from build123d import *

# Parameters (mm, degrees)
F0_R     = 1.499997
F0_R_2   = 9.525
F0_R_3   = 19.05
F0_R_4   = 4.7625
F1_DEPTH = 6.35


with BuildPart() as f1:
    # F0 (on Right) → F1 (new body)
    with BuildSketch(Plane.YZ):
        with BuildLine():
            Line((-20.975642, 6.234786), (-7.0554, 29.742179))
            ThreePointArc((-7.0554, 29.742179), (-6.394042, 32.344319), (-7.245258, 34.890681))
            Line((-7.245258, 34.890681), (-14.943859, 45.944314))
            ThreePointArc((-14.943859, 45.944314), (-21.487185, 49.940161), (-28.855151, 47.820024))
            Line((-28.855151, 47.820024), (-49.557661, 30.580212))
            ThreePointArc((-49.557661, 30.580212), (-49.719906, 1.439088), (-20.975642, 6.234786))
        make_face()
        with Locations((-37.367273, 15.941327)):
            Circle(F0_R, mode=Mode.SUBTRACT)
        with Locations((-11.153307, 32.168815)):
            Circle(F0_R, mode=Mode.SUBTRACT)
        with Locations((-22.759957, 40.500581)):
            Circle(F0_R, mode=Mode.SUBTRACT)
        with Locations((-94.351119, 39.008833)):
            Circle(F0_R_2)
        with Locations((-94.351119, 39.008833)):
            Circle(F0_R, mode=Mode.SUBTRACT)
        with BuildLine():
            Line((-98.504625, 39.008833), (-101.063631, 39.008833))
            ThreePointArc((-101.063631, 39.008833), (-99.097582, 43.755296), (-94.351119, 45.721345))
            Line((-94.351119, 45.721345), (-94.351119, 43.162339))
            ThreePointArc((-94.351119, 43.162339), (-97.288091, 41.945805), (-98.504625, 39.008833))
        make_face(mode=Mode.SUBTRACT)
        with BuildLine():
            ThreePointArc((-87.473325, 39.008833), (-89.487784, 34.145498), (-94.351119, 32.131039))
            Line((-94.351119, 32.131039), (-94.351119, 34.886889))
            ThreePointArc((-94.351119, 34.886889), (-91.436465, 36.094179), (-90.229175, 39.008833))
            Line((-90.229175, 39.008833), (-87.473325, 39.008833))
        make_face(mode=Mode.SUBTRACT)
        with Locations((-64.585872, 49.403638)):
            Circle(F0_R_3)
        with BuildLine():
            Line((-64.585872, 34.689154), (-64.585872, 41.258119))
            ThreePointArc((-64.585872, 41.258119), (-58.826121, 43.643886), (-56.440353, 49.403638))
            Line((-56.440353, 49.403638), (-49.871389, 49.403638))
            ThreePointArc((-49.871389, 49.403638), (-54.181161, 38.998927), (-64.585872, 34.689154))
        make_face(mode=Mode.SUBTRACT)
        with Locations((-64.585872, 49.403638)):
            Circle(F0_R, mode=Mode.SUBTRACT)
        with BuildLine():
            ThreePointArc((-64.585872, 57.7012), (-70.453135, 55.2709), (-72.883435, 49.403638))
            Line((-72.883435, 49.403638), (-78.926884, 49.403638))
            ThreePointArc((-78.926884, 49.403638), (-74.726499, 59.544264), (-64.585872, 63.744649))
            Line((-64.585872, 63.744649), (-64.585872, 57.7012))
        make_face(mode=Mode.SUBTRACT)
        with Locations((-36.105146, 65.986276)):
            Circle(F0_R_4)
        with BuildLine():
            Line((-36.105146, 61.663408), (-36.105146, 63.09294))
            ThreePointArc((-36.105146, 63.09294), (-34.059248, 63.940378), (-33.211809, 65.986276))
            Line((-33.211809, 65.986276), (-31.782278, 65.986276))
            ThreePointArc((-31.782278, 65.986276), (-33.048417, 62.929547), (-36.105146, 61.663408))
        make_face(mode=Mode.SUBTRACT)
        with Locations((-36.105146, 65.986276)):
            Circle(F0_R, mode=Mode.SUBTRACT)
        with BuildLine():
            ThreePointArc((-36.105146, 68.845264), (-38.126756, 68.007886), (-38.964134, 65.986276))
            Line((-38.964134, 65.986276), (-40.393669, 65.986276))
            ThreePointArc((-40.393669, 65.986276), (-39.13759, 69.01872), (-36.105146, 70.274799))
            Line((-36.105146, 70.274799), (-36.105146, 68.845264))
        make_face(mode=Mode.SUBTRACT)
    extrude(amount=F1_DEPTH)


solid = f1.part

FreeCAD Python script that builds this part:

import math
import FreeCAD as App
import Part
import Sketcher
Q = App.Units.Quantity

doc = App.newDocument("Part")
body = doc.addObject("PartDesign::Body", "Body")
body.AllowCompound = True

sketch1 = doc.addObject("Sketcher::SketchObject", "Sketch")
body.addObject(sketch1)
sketch1.AttachmentSupport = (doc.YZ_Plane, [""])
sketch1.MapMode = "FlatFace"
sketch1.addGeometry([
    Part.LineSegment(App.Vector(-20.975642, 6.234786, 0), App.Vector(-7.0554, 29.742179, 0)),
    Part.ArcOfCircle(Part.Circle(App.Vector(-11.153306, 32.168815, 0), App.Vector(0, 0, 1), 4.762498), math.radians(-30.632528), math.radians(34.856334)),
    Part.LineSegment(App.Vector(-7.245258, 34.890681, 0), App.Vector(-14.943859, 45.944314, 0)),
    Part.ArcOfCircle(Part.Circle(App.Vector(-22.759958, 40.50058, 0), App.Vector(0, 0, 1), 9.525001), math.radians(34.856329), math.radians(129.785499)),
    Part.LineSegment(App.Vector(-28.855151, 47.820024, 0), App.Vector(-49.557661, 30.580212, 0)),
    Part.ArcOfCircle(Part.Circle(App.Vector(-37.367273, 15.941328, 0), App.Vector(0, 0, 1), 19.05), math.radians(129.785511), math.radians(329.367489)),
    Part.Circle(App.Vector(-37.367273, 15.941327, 0), App.Vector(0, 0, 1), 1.499997),
    Part.Circle(App.Vector(-11.153307, 32.168815, 0), App.Vector(0, 0, 1), 1.499997),
    Part.Circle(App.Vector(-22.759957, 40.500581, 0), App.Vector(0, 0, 1), 1.499997),
    Part.Circle(App.Vector(-94.351119, 39.008833, 0), App.Vector(0, 0, 1), 9.525),
    Part.LineSegment(App.Vector(-90.229175, 39.008833, 0), App.Vector(-87.473325, 39.008833, 0)),
    Part.ArcOfCircle(Part.Circle(App.Vector(-94.351118, 39.008832, 0), App.Vector(0, 0, 1), 6.877793), math.radians(-90.000006), math.radians(0.000006)),
    Part.LineSegment(App.Vector(-94.351119, 32.131039, 0), App.Vector(-94.351119, 34.886889, 0)),
    Part.ArcOfCircle(Part.Circle(App.Vector(-94.351121, 39.008835, 0), App.Vector(0, 0, 1), 4.121946), math.radians(-89.999974), math.radians(-0.000026)),
    Part.Circle(App.Vector(-94.351119, 39.008833, 0), App.Vector(0, 0, 1), 1.499997),
    Part.ArcOfCircle(Part.Circle(App.Vector(-94.351118, 39.008832, 0), App.Vector(0, 0, 1), 4.153507), math.radians(90.000012), math.radians(179.999988)),
    Part.LineSegment(App.Vector(-98.504625, 39.008833, 0), App.Vector(-101.063631, 39.008833, 0)),
    Part.ArcOfCircle(Part.Circle(App.Vector(-94.35112, 39.008834, 0), App.Vector(0, 0, 1), 6.712511), math.radians(89.999993), math.radians(180.000007)),
    Part.LineSegment(App.Vector(-94.351119, 45.721345, 0), App.Vector(-94.351119, 43.162339, 0)),
    Part.Circle(App.Vector(-64.585872, 49.403638, 0), App.Vector(0, 0, 1), 19.05),
    Part.ArcOfCircle(Part.Circle(App.Vector(-64.585873, 49.403638, 0), App.Vector(0, 0, 1), 14.714484), math.radians(-89.999997), math.radians(0.000001)),
    Part.LineSegment(App.Vector(-64.585872, 34.689154, 0), App.Vector(-64.585872, 41.258119, 0)),
    Part.ArcOfCircle(Part.Circle(App.Vector(-64.585873, 49.403639, 0), App.Vector(0, 0, 1), 8.14552), math.radians(-89.999995), math.radians(-0.000005)),
    Part.LineSegment(App.Vector(-56.440353, 49.403638, 0), App.Vector(-49.871389, 49.403638, 0)),
    Part.Circle(App.Vector(-64.585872, 49.403638, 0), App.Vector(0, 0, 1), 1.499997),
    Part.LineSegment(App.Vector(-64.585872, 63.744649, 0), App.Vector(-64.585872, 57.7012, 0)),
    Part.ArcOfCircle(Part.Circle(App.Vector(-64.585872, 49.403637, 0), App.Vector(0, 0, 1), 8.297563), math.radians(90.000002), math.radians(179.999992)),
    Part.LineSegment(App.Vector(-72.883435, 49.403638, 0), App.Vector(-78.926884, 49.403638, 0)),
    Part.ArcOfCircle(Part.Circle(App.Vector(-64.585873, 49.403638, 0), App.Vector(0, 0, 1), 14.341011), math.radians(89.999998), math.radians(179.999998)),
    Part.Circle(App.Vector(-36.105146, 65.986276, 0), App.Vector(0, 0, 1), 4.7625),
    Part.ArcOfCircle(Part.Circle(App.Vector(-36.105147, 65.986277, 0), App.Vector(0, 0, 1), 4.322869), math.radians(-89.999987), math.radians(-0.000013)),
    Part.LineSegment(App.Vector(-36.105146, 61.663408, 0), App.Vector(-36.105146, 63.09294, 0)),
    Part.ArcOfCircle(Part.Circle(App.Vector(-36.105145, 65.986276, 0), App.Vector(0, 0, 1), 2.893336), math.radians(-90.000019), math.radians(0)),
    Part.LineSegment(App.Vector(-33.211809, 65.986276, 0), App.Vector(-31.782278, 65.986276, 0)),
    Part.Circle(App.Vector(-36.105146, 65.986276, 0), App.Vector(0, 0, 1), 1.499997),
    Part.LineSegment(App.Vector(-36.105146, 70.274799, 0), App.Vector(-36.105146, 68.845264, 0)),
    Part.ArcOfCircle(Part.Circle(App.Vector(-36.105147, 65.986277, 0), App.Vector(0, 0, 1), 2.858987), math.radians(89.999986), math.radians(180.000014)),
    Part.LineSegment(App.Vector(-38.964134, 65.986276, 0), App.Vector(-40.393669, 65.986276, 0)),
    Part.ArcOfCircle(Part.Circle(App.Vector(-36.105147, 65.986277, 0), App.Vector(0, 0, 1), 4.288522), math.radians(89.999986), math.radians(180.000014)),
], False)
sketch1.addConstraint([
    Sketcher.Constraint("Tangent", 0, 2, 1, 1),
    Sketcher.Constraint("Tangent", 1, 2, 2, 1),
    Sketcher.Constraint("Tangent", 2, 2, 3, 1),
    Sketcher.Constraint("Tangent", 3, 2, 4, 1),
    Sketcher.Constraint("Tangent", 4, 2, 5, 1),
    Sketcher.Constraint("Tangent", 5, 2, 0, 1),
    Sketcher.Constraint("Coincident", 10, 2, 11, 2),
    Sketcher.Constraint("Coincident", 11, 1, 12, 1),
    Sketcher.Constraint("Coincident", 12, 2, 13, 1),
    Sketcher.Constraint("Coincident", 13, 2, 10, 1),
    Sketcher.Constraint("Coincident", 15, 2, 16, 1),
    Sketcher.Constraint("Coincident", 16, 2, 17, 2),
    Sketcher.Constraint("Coincident", 17, 1, 18, 1),
    Sketcher.Constraint("Coincident", 18, 2, 15, 1),
    Sketcher.Constraint("Coincident", 20, 1, 21, 1),
    Sketcher.Constraint("Coincident", 21, 2, 22, 1),
    Sketcher.Constraint("Coincident", 22, 2, 23, 1),
    Sketcher.Constraint("Coincident", 23, 2, 20, 2),
    Sketcher.Constraint("Coincident", 25, 2, 26, 1),
    Sketcher.Constraint("Coincident", 26, 2, 27, 1),
    Sketcher.Constraint("Coincident", 27, 2, 28, 2),
    Sketcher.Constraint("Coincident", 28, 1, 25, 1),
    Sketcher.Constraint("Coincident", 30, 1, 31, 1),
    Sketcher.Constraint("Coincident", 31, 2, 32, 1),
    Sketcher.Constraint("Coincident", 32, 2, 33, 1),
    Sketcher.Constraint("Coincident", 33, 2, 30, 2),
    Sketcher.Constraint("Coincident", 35, 2, 36, 1),
    Sketcher.Constraint("Coincident", 36, 2, 37, 1),
    Sketcher.Constraint("Coincident", 37, 2, 38, 2),
    Sketcher.Constraint("Coincident", 38, 1, 35, 1),
    Sketcher.Constraint("Horizontal", 10),
    Sketcher.Constraint("Vertical", 12),
    Sketcher.Constraint("Horizontal", 16),
    Sketcher.Constraint("Vertical", 18),
    Sketcher.Constraint("Vertical", 21),
    Sketcher.Constraint("Horizontal", 23),
    Sketcher.Constraint("Vertical", 25),
    Sketcher.Constraint("Horizontal", 27),
    Sketcher.Constraint("Vertical", 31),
    Sketcher.Constraint("Horizontal", 33),
    Sketcher.Constraint("Vertical", 35),
    Sketcher.Constraint("Horizontal", 37),
    Sketcher.Constraint("Coincident", 6, 3, 5, 3),
    Sketcher.Constraint("Coincident", 7, 3, 1, 3),
    Sketcher.Constraint("Coincident", 8, 3, 3, 3),
    Sketcher.Constraint("Coincident", 11, 3, 9, 3),
    Sketcher.Constraint("Coincident", 13, 3, 9, 3),
    Sketcher.Constraint("Coincident", 14, 3, 9, 3),
    Sketcher.Constraint("Coincident", 15, 3, 9, 3),
    Sketcher.Constraint("Coincident", 17, 3, 9, 3),
    Sketcher.Constraint("Coincident", 20, 3, 19, 3),
    Sketcher.Constraint("Coincident", 22, 3, 19, 3),
    Sketcher.Constraint("Coincident", 24, 3, 19, 3),
    Sketcher.Constraint("Coincident", 26, 3, 19, 3),
    Sketcher.Constraint("Coincident", 28, 3, 19, 3),
    Sketcher.Constraint("Coincident", 30, 3, 29, 3),
    Sketcher.Constraint("Coincident", 32, 3, 29, 3),
    Sketcher.Constraint("Coincident", 34, 3, 29, 3),
    Sketcher.Constraint("Coincident", 36, 3, 29, 3),
    Sketcher.Constraint("Coincident", 38, 3, 29, 3),
    Sketcher.Constraint("Equal", 6, 7),
    Sketcher.Constraint("Equal", 7, 8),
    Sketcher.Constraint("Equal", 3, 9),
    Sketcher.Constraint("Equal", 8, 14),
    Sketcher.Constraint("Equal", 5, 19),
    Sketcher.Constraint("Equal", 14, 24),
    Sketcher.Constraint("Equal", 1, 29),
    Sketcher.Constraint("Equal", 24, 34),
    Sketcher.Constraint("Horizontal", 17, 3, 10, 2),
    Sketcher.Constraint("Horizontal", 13, 2, 15, 2),
    Sketcher.Constraint("Horizontal", 28, 3, 22, 2),
    Sketcher.Constraint("Horizontal", 23, 2, 26, 2),
    Sketcher.Constraint("Horizontal", 38, 3, 32, 2),
    Sketcher.Constraint("Horizontal", 33, 2, 36, 2),
    Sketcher.Constraint("Vertical", 17, 3, 11, 1),
    Sketcher.Constraint("Vertical", 12, 2, 17, 1),
    Sketcher.Constraint("Vertical", 28, 3, 20, 1),
    Sketcher.Constraint("Vertical", 21, 2, 25, 2),
    Sketcher.Constraint("Vertical", 38, 3, 30, 1),
    Sketcher.Constraint("Vertical", 31, 2, 35, 2),
    Sketcher.Constraint("Diameter", 19, Q("1.5 in")),
    Sketcher.Constraint("Diameter", 9, Q("0.75 in")),
    Sketcher.Constraint("Diameter", 29, Q("0.375 in")),
    Sketcher.Constraint("Radius", 17, 6.712511),
    Sketcher.Constraint("Radius", 22, 8.14552),
    Sketcher.Constraint("Radius", 28, 14.341011),
    Sketcher.Constraint("Radius", 30, 4.322869),
    Sketcher.Constraint("Radius", 38, 4.288522),
    Sketcher.Constraint("Diameter", 6, 2.999994),
    Sketcher.Constraint("Radius", 11, 6.877793),
    Sketcher.Constraint("Radius", 13, 4.121946),
    Sketcher.Constraint("Radius", 15, 4.153507),
    Sketcher.Constraint("Radius", 20, 14.714484),
    Sketcher.Constraint("Radius", 26, 8.297563),
    Sketcher.Constraint("Radius", 32, 2.893336),
    Sketcher.Constraint("Radius", 36, 2.858987),
    Sketcher.Constraint("DistanceX", 0, 2, -1, 1, 7.0554),
    Sketcher.Constraint("DistanceY", -1, 1, 25, 2, 57.7012),
    Sketcher.Constraint("DistanceY", -1, 1, 38, 1, 70.274799),
    Sketcher.Constraint("DistanceY", 0, 2, 8, 3, 10.758402),
    Sketcher.Constraint("DistanceY", 0, 2, 1, 2, 5.148502),
    Sketcher.Constraint("DistanceX", 8, 3, 1, 2, 15.514699),
    Sketcher.Constraint("Distance", 4, 26.940769),
    Sketcher.Constraint("DistanceY", -1, 1, 3, 3, 40.50058),
    Sketcher.Constraint("DistanceX", 9, 3, -1, 1, 94.351119),
    Sketcher.Constraint("DistanceX", 19, 3, -1, 1, 64.585872),
    Sketcher.Constraint("DistanceY", -1, 1, 11, 1, 32.131039),
    Sketcher.Constraint("DistanceX", 32, 2, -1, 1, 33.211809),
])
pad1 = doc.addObject("PartDesign::Pad", "Pad")
body.addObject(pad1)
pad1.Profile = sketch1
pad1.Length = Q("0.25 in")

doc.recompute()
